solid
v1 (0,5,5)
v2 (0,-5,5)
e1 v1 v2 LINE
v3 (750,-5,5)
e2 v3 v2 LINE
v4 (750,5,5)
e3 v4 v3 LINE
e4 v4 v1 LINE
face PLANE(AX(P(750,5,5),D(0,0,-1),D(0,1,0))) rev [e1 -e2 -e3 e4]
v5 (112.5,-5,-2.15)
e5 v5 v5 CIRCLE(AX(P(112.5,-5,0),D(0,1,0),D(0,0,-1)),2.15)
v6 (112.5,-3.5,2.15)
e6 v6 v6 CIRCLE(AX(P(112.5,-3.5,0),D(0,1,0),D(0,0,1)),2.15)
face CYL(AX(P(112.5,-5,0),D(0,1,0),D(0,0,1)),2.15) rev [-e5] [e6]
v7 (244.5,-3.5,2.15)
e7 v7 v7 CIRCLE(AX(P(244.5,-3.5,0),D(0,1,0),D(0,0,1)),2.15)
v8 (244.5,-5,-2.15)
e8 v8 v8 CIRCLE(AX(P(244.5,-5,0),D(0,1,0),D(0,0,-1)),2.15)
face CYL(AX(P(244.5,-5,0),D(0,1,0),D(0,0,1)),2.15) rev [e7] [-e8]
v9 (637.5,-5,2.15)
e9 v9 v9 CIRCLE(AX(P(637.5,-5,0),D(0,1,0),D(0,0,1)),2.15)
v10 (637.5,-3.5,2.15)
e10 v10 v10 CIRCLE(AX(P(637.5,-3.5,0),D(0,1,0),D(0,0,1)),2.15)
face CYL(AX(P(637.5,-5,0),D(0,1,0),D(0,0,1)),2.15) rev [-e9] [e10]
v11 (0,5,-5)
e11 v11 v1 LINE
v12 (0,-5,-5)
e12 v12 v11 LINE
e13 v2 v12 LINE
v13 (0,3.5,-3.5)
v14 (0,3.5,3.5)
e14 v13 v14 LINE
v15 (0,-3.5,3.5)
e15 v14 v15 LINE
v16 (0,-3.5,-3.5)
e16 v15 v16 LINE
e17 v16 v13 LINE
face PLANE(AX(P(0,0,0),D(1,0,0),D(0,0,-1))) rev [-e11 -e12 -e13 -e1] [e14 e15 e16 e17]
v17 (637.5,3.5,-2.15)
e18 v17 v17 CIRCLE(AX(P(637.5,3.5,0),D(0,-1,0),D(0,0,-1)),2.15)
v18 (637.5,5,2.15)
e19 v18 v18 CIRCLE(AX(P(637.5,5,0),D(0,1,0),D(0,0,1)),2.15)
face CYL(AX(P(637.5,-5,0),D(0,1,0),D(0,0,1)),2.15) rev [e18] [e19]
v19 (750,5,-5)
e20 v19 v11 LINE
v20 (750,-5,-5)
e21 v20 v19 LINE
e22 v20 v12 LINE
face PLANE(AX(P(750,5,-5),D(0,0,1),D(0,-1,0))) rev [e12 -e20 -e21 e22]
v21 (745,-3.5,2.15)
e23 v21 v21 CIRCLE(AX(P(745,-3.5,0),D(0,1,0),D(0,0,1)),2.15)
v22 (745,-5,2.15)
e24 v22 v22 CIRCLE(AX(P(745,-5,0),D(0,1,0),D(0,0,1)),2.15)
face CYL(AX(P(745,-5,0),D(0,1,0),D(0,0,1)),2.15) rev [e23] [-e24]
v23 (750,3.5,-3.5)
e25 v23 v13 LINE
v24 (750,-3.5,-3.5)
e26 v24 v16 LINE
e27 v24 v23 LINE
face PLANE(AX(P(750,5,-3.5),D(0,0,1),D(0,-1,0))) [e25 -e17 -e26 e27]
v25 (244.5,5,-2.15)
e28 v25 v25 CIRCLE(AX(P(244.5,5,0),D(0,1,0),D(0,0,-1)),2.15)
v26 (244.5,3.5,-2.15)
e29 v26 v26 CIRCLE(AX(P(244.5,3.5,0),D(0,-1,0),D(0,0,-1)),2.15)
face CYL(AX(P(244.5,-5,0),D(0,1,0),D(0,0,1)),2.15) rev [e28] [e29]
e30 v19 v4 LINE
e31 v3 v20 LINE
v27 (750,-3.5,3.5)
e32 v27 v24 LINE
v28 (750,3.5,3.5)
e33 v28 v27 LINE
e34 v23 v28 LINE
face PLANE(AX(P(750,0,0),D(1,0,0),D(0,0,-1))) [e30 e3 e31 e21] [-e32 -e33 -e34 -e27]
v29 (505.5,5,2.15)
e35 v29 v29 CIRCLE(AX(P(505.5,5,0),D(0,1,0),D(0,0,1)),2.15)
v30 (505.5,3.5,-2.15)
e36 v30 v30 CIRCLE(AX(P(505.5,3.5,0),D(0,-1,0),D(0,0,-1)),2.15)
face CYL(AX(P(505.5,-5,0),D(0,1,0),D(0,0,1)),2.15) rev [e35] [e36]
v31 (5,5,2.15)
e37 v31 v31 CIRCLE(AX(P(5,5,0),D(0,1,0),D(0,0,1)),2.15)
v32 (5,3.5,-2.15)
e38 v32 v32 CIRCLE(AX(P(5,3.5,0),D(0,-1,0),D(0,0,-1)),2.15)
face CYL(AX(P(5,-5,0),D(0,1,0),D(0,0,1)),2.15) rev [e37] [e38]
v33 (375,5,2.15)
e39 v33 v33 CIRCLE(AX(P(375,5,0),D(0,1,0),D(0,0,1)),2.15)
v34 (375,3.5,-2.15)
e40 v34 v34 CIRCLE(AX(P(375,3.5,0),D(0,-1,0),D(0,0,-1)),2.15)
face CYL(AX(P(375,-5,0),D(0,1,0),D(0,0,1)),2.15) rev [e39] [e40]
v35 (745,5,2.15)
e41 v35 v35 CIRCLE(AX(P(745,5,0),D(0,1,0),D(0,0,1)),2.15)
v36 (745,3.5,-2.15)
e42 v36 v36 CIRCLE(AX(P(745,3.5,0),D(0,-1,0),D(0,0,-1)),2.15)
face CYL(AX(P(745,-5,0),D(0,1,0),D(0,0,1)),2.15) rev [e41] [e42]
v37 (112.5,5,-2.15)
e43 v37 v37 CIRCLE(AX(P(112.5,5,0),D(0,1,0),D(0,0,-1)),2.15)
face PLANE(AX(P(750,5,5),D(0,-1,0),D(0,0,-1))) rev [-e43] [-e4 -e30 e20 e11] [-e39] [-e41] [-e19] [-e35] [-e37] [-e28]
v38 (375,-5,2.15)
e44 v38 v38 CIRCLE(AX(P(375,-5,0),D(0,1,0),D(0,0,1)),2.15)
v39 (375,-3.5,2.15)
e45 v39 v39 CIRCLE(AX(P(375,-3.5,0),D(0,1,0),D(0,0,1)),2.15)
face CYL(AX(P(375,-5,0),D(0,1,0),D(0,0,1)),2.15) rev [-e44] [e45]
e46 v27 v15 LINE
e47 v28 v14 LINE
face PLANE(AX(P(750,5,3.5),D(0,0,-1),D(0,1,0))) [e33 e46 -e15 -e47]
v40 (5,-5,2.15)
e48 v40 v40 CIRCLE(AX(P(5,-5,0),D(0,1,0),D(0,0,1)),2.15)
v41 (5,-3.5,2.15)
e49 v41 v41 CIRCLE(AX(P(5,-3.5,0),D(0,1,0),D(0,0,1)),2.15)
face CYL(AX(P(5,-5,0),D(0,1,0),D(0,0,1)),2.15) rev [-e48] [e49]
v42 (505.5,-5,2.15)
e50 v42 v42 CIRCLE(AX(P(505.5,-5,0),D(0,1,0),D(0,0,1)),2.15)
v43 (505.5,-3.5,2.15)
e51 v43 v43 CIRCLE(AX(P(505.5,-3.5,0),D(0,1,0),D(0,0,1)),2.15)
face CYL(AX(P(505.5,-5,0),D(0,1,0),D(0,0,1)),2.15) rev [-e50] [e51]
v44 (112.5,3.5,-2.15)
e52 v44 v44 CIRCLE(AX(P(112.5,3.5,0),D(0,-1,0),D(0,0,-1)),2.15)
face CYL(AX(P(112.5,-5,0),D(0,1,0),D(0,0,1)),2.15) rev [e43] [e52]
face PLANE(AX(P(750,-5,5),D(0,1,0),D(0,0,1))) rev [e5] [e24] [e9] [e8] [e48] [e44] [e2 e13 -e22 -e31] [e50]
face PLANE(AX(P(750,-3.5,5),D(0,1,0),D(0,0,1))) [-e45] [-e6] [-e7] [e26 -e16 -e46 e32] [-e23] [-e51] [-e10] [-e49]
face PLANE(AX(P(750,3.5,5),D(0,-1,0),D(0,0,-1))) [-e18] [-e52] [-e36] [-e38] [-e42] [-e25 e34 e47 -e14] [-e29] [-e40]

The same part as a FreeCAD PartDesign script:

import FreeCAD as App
import Part
import Sketcher

doc = App.newDocument("Part")
body = doc.addObject("PartDesign::Body", "Body")

# Sketch on YZ plane
sketch1 = body.newObject("Sketcher::SketchObject", "Sketch")
sketch1.AttachmentSupport = (doc.getObject("YZ_Plane"), [""])
sketch1.MapMode = "FlatFace"
sketch1.addGeometry(Part.LineSegment(App.Vector(5, 5, 0), App.Vector(-5, 5, 0)), False)
sketch1.addGeometry(Part.LineSegment(App.Vector(-5, 5, 0), App.Vector(-5, -5, 0)), False)
sketch1.addGeometry(Part.LineSegment(App.Vector(-5, -5, 0), App.Vector(5, -5, 0)), False)
sketch1.addGeometry(Part.LineSegment(App.Vector(5, -5, 0), App.Vector(5, 5, 0)), False)
sketch1.addGeometry(Part.LineSegment(App.Vector(-4, -4, 0), App.Vector(-4, 4, 0)), False)
sketch1.addGeometry(Part.LineSegment(App.Vector(-4, 4, 0), App.Vector(4, 4, 0)), False)
sketch1.addGeometry(Part.LineSegment(App.Vector(4, 4, 0), App.Vector(4, -4, 0)), False)
sketch1.addGeometry(Part.LineSegment(App.Vector(4, -4, 0), App.Vector(-4, -4, 0)), False)
sketch1.addConstraint(Sketcher.Constraint("Coincident", 0, 2, 1, 1))
sketch1.addConstraint(Sketcher.Constraint("Coincident", 1, 2, 2, 1))
sketch1.addConstraint(Sketcher.Constraint("Coincident", 2, 2, 3, 1))
sketch1.addConstraint(Sketcher.Constraint("Coincident", 3, 2, 0, 1))
sketch1.addConstraint(Sketcher.Constraint("Coincident", 4, 2, 5, 1))
sketch1.addConstraint(Sketcher.Constraint("Coincident", 5, 2, 6, 1))
sketch1.addConstraint(Sketcher.Constraint("Coincident", 6, 2, 7, 1))
sketch1.addConstraint(Sketcher.Constraint("Coincident", 7, 2, 4, 1))
sketch1.addConstraint(Sketcher.Constraint("Horizontal", 0))
sketch1.addConstraint(Sketcher.Constraint("Vertical", 1))
sketch1.addConstraint(Sketcher.Constraint("Horizontal", 2))
sketch1.addConstraint(Sketcher.Constraint("Vertical", 3))
sketch1.addConstraint(Sketcher.Constraint("Vertical", 4))
sketch1.addConstraint(Sketcher.Constraint("Horizontal", 5))
sketch1.addConstraint(Sketcher.Constraint("Vertical", 6))
sketch1.addConstraint(Sketcher.Constraint("Horizontal", 7))
sketch1.addConstraint(Sketcher.Constraint("Symmetric", 0, 2, 2, 2, -1, 1))
sketch1.addConstraint(Sketcher.Constraint("Symmetric", 4, 2, 6, 2, -1, 1))
sketch1.addConstraint(Sketcher.Constraint("Equal", 2, 1))
sketch1.addConstraint(Sketcher.Constraint("Equal", 7, 4))
sketch1.addConstraint(Sketcher.Constraint("DistanceX", 0, 2, 0, 1, 10.0))
sketch1.addConstraint(Sketcher.Constraint("DistanceX", 5, 1, 5, 2, 7.0))
pad1 = body.newObject("PartDesign::Pad", "Pad")
pad1.Profile = sketch1
pad1.Length = 750

# Sketch on XZ plane
sketch2 = body.newObject("Sketcher::SketchObject", "Sketch001")
sketch2.AttachmentSupport = (doc.getObject("XZ_Plane"), [""])
sketch2.MapMode = "FlatFace"
sketch2.AttachmentOffset = App.Placement(App.Vector(0, 0, -5), App.Rotation())
sketch2.addGeometry(Part.Circle(App.Vector(745, 0, 0), App.Vector(0, 0, 1), 2.1), False)
sketch2.addGeometry(Part.Circle(App.Vector(5, 0, 0), App.Vector(0, 0, 1), 2.1), False)
sketch2.addGeometry(Part.Circle(App.Vector(505.5, 0, 0), App.Vector(0, 0, 1), 2.1), False)
sketch2.addGeometry(Part.Circle(App.Vector(244.5, 0, 0), App.Vector(0, 0, 1), 2.1), False)
sketch2.addGeometry(Part.Circle(App.Vector(637.5, 0, 0), App.Vector(0, 0, 1), 2.1), False)
sketch2.addGeometry(Part.Circle(App.Vector(112.5, 0, 0), App.Vector(0, 0, 1), 2.1), False)
sketch2.addGeometry(Part.Circle(App.Vector(375, 0, 0), App.Vector(0, 0, 1), 2.1), False)
sketch2.addConstraint(Sketcher.Constraint("Equal", 0, 1))
sketch2.addConstraint(Sketcher.Constraint("Equal", 1, 2))
sketch2.addConstraint(Sketcher.Constraint("Equal", 2, 3))
sketch2.addConstraint(Sketcher.Constraint("Equal", 3, 4))
sketch2.addConstraint(Sketcher.Constraint("Equal", 4, 5))
sketch2.addConstraint(Sketcher.Constraint("Equal", 5, 6))
sketch2.addConstraint(Sketcher.Constraint("PointOnObject", 0, 3, -1))
sketch2.addConstraint(Sketcher.Constraint("PointOnObject", 1, 3, -1))
sketch2.addConstraint(Sketcher.Constraint("PointOnObject", 2, 3, -1))
sketch2.addConstraint(Sketcher.Constraint("PointOnObject", 3, 3, -1))
sketch2.addConstraint(Sketcher.Constraint("PointOnObject", 4, 3, -1))
sketch2.addConstraint(Sketcher.Constraint("PointOnObject", 5, 3, -1))
sketch2.addConstraint(Sketcher.Constraint("PointOnObject", 6, 3, -1))
sketch2.addConstraint(Sketcher.Constraint("Diameter", 0, 4.3))
sketch2.addConstraint(Sketcher.Constraint("DistanceX", -1, 1, 0, 3, 745.0))
sketch2.addConstraint(Sketcher.Constraint("DistanceX", -1, 1, 1, 3, 5.0))
sketch2.addConstraint(Sketcher.Constraint("DistanceX", -1, 1, 6, 3, 375.0))
sketch2.addConstraint(Sketcher.Constraint("DistanceX", 3, 3, 2, 3, 261.0))
sketch2.addConstraint(Sketcher.Constraint("DistanceX", 2, 3, 4, 3, 132.0))
sketch2.addConstraint(Sketcher.Constraint("DistanceX", 5, 3, 3, 3, 132.0))
sketch2.addConstraint(Sketcher.Constraint("DistanceX", -1, 1, 2, 3, 505.5))
pocket1 = body.newObject("PartDesign::Pocket", "Pocket")
pocket1.Profile = sketch2
pocket1.Type = "ThroughAll"
pocket1.Reversed = True

doc.recompute()
